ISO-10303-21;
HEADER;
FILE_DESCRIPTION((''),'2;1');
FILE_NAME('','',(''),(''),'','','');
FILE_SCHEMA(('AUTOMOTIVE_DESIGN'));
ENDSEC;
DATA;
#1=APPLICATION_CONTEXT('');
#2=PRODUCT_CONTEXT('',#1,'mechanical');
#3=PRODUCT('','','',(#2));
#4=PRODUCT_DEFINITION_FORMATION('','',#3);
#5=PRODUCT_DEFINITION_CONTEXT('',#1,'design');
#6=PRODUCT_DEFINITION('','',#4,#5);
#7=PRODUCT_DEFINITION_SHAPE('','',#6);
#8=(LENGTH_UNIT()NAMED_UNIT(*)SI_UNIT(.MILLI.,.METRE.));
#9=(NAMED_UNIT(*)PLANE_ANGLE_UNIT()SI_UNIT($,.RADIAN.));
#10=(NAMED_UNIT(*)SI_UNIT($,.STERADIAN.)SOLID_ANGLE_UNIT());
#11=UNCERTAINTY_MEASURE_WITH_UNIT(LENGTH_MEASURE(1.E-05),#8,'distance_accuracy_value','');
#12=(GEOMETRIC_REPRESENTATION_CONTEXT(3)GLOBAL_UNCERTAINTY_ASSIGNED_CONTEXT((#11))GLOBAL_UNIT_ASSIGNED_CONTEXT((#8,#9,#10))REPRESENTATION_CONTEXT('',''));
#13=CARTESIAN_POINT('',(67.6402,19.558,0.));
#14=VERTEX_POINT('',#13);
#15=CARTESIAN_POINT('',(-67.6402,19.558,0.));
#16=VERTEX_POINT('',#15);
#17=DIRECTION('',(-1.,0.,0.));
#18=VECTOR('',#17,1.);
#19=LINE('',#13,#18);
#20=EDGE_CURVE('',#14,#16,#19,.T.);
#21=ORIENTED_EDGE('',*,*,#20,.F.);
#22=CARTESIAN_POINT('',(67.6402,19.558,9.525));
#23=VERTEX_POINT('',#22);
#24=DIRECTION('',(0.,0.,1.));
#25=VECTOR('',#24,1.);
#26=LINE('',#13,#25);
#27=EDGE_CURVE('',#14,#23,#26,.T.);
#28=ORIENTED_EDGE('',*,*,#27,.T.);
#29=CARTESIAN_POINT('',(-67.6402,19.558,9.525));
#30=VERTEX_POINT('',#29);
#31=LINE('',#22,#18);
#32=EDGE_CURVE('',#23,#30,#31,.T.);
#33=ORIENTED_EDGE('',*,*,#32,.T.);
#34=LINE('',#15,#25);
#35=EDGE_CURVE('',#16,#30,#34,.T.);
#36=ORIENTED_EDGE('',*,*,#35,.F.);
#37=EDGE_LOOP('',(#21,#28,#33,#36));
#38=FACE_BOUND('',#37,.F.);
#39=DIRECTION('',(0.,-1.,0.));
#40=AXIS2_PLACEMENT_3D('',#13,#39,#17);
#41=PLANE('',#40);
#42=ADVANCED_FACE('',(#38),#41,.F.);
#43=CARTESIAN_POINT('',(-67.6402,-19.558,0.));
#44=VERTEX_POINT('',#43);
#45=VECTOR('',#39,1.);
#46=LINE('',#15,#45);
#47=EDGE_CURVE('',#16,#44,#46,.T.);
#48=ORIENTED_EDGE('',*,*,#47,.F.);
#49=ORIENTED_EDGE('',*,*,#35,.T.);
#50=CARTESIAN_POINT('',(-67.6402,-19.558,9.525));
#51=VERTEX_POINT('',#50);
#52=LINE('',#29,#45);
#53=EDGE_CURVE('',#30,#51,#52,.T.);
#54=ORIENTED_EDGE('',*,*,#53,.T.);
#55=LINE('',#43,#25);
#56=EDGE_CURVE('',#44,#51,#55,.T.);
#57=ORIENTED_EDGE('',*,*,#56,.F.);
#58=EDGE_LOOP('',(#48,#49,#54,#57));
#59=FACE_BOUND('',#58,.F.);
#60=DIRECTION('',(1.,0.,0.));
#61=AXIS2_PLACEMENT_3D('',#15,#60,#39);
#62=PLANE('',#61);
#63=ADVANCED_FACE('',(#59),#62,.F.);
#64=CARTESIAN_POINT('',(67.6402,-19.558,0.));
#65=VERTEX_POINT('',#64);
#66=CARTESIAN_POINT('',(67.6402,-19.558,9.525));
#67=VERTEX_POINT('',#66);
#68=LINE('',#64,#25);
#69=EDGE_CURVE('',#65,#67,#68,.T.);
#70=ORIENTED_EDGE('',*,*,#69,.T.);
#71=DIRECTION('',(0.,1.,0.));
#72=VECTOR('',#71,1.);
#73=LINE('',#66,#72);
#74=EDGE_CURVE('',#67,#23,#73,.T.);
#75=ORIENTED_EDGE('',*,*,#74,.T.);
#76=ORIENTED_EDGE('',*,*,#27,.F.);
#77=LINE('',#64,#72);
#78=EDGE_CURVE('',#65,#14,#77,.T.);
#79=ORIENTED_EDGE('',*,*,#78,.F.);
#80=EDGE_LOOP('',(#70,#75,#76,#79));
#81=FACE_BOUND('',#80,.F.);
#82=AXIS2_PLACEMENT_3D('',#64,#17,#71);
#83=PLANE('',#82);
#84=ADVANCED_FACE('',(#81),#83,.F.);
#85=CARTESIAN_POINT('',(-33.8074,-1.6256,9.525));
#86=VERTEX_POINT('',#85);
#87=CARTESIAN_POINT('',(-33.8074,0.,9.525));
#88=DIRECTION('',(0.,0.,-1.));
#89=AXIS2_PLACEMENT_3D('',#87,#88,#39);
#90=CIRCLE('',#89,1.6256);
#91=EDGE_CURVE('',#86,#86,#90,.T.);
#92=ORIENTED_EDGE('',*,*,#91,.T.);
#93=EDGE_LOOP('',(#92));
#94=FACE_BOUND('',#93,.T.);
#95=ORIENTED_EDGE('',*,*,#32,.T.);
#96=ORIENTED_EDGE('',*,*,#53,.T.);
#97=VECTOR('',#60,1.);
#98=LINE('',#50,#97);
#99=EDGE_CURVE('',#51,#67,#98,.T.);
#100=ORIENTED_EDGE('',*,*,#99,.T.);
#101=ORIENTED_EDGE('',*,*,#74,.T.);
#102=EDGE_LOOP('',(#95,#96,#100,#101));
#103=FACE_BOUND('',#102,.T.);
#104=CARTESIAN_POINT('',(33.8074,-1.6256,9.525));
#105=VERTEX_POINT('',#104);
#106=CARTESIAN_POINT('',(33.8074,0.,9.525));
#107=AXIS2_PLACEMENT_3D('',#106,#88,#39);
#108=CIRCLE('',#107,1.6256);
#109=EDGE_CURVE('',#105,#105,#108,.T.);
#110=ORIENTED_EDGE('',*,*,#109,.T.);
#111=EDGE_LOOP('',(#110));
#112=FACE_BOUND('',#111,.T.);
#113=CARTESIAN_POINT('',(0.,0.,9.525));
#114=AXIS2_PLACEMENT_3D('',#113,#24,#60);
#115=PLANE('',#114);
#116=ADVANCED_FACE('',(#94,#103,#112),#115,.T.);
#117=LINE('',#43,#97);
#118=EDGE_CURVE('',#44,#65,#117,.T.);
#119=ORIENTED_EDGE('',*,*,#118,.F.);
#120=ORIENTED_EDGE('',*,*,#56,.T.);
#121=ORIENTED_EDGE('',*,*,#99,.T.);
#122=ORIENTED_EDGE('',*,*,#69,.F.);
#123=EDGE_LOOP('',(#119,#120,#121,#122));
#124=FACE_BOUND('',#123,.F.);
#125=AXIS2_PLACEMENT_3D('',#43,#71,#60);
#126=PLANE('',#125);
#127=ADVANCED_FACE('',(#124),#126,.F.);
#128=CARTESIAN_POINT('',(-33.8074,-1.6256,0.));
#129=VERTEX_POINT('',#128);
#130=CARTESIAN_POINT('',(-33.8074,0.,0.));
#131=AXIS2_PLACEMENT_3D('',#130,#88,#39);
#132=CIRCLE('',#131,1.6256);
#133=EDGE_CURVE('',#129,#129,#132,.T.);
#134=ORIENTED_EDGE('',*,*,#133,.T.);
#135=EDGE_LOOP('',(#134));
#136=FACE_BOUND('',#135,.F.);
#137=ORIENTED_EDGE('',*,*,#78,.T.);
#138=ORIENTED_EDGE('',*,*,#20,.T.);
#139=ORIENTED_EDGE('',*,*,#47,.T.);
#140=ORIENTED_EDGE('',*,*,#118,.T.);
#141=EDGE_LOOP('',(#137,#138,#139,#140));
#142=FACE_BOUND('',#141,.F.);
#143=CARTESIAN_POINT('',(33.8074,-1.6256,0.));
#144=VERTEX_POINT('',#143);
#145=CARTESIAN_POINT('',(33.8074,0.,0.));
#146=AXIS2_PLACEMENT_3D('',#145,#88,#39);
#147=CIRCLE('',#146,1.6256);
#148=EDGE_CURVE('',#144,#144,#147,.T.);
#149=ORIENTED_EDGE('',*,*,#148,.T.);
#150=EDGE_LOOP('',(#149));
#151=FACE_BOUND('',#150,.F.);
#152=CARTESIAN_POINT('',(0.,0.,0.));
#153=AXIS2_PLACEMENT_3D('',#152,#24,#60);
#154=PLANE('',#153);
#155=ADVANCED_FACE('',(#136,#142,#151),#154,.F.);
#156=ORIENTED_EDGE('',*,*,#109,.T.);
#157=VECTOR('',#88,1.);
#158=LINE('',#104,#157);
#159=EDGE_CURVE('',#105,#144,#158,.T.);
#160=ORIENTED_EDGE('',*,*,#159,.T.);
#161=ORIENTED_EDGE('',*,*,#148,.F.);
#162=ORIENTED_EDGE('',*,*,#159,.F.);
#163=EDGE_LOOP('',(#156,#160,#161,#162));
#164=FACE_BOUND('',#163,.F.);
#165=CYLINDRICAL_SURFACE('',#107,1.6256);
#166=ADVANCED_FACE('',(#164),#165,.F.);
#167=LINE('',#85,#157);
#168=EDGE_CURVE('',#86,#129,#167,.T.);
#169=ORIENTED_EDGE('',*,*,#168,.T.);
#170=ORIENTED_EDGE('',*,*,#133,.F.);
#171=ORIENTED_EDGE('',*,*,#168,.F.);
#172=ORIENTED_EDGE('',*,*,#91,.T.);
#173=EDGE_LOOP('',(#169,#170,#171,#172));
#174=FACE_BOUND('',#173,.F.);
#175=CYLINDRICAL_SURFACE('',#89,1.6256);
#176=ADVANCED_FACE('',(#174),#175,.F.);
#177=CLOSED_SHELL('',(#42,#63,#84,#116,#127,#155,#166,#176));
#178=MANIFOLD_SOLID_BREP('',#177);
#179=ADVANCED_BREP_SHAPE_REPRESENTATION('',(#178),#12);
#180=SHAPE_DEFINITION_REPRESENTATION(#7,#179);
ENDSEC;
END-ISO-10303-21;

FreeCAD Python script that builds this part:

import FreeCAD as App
import Part
import Sketcher
from FreeCAD import Vector
Q = App.Units.Quantity


def add_polygon(sketch, points):
    """Adds a closed chain of lines whose ends are joined by coincident constraints."""
    first, n = sketch.GeometryCount, len(points)
    for a, b in zip(points, points[1:] + points[:1]):
        sketch.addGeometry(Part.LineSegment(App.Vector(*a, 0), App.Vector(*b, 0)), False)
    for i in range(n):
        sketch.addConstraint(Sketcher.Constraint("Coincident", first + i, 2, first + (i + 1) % n, 1))

doc = App.newDocument("Part")
body = doc.addObject("PartDesign::Body", "Body")

# Sketch on XY plane
sketch1 = doc.addObject("Sketcher::SketchObject", "Sketch")
body.addObject(sketch1)
sketch1.AttachmentSupport = (doc.XY_Plane, [""])
sketch1.MapMode = "FlatFace"
add_polygon(sketch1, [(-67.6402, 19.558), (-67.6402, -19.558), (67.6402, -19.558), (67.6402, 19.558)])  # lines 0-3
sketch1.addConstraint(Sketcher.Constraint("Vertical", 0))
sketch1.addConstraint(Sketcher.Constraint("Horizontal", 1))
sketch1.addConstraint(Sketcher.Constraint("Vertical", 2))
sketch1.addConstraint(Sketcher.Constraint("Horizontal", 3))
sketch1.addConstraint(Sketcher.Constraint("Symmetric", 0, 2, 2, 2, -1, 1))
sketch1.addConstraint(Sketcher.Constraint("DistanceY", 0, 2, 0, 1, Q("1.54 in")))
sketch1.addConstraint(Sketcher.Constraint("DistanceX", 1, 1, 1, 2, Q("5.326 in")))
pad1 = doc.addObject("PartDesign::Pad", "Pad")
body.addObject(pad1)
pad1.Profile = sketch1
pad1.Length = Q("0.375 in")

# Sketch on XY plane
sketch2 = doc.addObject("Sketcher::SketchObject", "Sketch001")
body.addObject(sketch2)
sketch2.AttachmentSupport = (doc.XY_Plane, [""])
sketch2.MapMode = "FlatFace"
sketch2.AttachmentOffset = App.Placement(Vector(0, 0, 0.375 * 25.4), App.Rotation())
sketch2.addGeometry(Part.Circle(Vector(-33.8074, 0, 0), Vector(0, 0, 1), 1.6256), False)
sketch2.addGeometry(Part.Circle(Vector(33.8074, 0, 0), Vector(0, 0, 1), 1.6256), False)
sketch2.addConstraint(Sketcher.Constraint("Equal", 0, 1))
sketch2.addConstraint(Sketcher.Constraint("Symmetric", 0, 3, 1, 3, -1, 1))
sketch2.addConstraint(Sketcher.Constraint("PointOnObject", 0, 3, -1))
sketch2.addConstraint(Sketcher.Constraint("Diameter", 0, Q("0.128 in")))
sketch2.addConstraint(Sketcher.Constraint("DistanceX", 0, 3, -1, 1, Q("1.331 in")))
doc.recompute()
hole = doc.addObject("PartDesign::Hole", "Hole")
body.addObject(hole)
hole.Profile = sketch2
hole.ThreadType = "None"
hole.Diameter = Q("0.128 in")
hole.DepthType = "ThroughAll"

doc.recompute()
